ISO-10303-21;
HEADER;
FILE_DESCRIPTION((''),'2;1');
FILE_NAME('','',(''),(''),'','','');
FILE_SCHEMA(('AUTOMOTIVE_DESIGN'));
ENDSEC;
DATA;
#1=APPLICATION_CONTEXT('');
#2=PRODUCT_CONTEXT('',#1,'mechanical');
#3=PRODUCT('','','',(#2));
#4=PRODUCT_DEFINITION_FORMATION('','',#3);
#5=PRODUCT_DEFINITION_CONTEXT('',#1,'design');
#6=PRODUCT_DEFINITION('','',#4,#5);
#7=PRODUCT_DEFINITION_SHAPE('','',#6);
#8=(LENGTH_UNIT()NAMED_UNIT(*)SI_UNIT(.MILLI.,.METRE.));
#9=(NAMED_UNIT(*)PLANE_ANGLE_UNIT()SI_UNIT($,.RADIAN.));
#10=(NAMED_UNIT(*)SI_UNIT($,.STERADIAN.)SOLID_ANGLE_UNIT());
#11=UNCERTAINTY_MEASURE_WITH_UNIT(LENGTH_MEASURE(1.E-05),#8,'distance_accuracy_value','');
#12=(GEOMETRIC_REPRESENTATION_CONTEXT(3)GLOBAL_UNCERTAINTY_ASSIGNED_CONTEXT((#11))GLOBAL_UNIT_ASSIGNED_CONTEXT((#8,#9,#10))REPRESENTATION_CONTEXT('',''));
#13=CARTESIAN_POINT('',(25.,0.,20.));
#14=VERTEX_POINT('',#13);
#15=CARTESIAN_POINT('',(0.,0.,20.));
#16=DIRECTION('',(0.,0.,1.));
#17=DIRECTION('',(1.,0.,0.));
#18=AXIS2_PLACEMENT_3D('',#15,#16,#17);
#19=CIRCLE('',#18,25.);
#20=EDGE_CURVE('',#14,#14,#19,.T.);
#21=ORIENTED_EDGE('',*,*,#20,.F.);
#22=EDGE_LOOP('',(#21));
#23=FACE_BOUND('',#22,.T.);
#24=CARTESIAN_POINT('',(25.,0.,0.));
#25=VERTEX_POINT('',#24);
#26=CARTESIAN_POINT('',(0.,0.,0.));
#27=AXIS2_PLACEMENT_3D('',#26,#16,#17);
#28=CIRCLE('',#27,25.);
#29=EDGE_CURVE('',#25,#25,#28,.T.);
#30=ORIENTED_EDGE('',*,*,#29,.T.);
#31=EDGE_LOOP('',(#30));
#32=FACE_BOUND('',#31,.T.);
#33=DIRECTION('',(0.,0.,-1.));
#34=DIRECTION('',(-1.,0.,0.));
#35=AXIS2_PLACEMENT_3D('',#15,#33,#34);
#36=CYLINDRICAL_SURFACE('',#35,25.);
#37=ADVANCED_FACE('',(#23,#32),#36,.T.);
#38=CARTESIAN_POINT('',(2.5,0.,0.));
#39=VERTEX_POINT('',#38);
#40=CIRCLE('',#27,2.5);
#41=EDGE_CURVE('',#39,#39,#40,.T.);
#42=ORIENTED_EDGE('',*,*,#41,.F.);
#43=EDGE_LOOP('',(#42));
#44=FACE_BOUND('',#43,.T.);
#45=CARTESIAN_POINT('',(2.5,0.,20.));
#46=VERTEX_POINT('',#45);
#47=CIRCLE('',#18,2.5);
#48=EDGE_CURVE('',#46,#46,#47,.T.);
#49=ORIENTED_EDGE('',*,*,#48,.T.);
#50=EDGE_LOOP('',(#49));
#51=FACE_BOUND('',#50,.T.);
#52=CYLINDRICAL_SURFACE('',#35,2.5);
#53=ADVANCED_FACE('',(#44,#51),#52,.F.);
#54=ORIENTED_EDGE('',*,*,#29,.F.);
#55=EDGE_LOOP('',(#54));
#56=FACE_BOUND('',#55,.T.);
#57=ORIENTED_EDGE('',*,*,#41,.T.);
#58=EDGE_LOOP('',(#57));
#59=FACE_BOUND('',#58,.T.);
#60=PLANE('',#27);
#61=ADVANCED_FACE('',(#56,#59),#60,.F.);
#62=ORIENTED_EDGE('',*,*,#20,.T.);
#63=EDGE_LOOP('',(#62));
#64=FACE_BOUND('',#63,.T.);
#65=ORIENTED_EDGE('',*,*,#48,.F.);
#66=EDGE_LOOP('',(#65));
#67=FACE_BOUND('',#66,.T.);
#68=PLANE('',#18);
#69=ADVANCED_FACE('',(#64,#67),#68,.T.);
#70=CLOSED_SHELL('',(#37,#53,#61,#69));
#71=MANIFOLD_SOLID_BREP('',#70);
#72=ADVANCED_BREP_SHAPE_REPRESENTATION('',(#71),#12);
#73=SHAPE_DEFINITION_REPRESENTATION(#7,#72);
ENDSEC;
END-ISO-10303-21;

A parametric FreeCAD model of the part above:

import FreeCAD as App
import Part
import Sketcher

doc = App.newDocument("Part")
params = doc.addObject("Spreadsheet::Sheet", "Params")
for row, (alias, value) in enumerate([
    ("sketch1_diameter", "50 mm"),
    ("sketch1_diameter2", "5 mm"),
    ("pad1_length", "20 mm"),
], start=1):
    params.set(f"A{row}", alias)
    params.set(f"B{row}", "=" + value)
    params.setAlias(f"B{row}", alias)

body = doc.addObject("PartDesign::Body", "Body")

# Sketch on XY plane
sketch1 = body.newObject("Sketcher::SketchObject", "Sketch")
sketch1.AttachmentSupport = (doc.getObject("XY_Plane"), [""])
sketch1.MapMode = "FlatFace"
sketch1.addGeometry(Part.Circle(App.Vector(0, 0, 0), App.Vector(0, 0, 1), 25), False)
sketch1.addGeometry(Part.Circle(App.Vector(0, 0, 0), App.Vector(0, 0, 1), 2.5), False)
sketch1.addConstraint(Sketcher.Constraint("Coincident", 0, 3, -1, 1))
sketch1.addConstraint(Sketcher.Constraint("Coincident", 1, 3, -1, 1))
sketch1.addConstraint(Sketcher.Constraint("Diameter", 0, 50.0))
sketch1.addConstraint(Sketcher.Constraint("Diameter", 1, 5.0))
sketch1.setExpression("Constraints[2]", "Params.sketch1_diameter")
sketch1.setExpression("Constraints[3]", "Params.sketch1_diameter2")
pad1 = body.newObject("PartDesign::Pad", "Pad")
pad1.Profile = sketch1
pad1.setExpression("Length", "Params.pad1_length")

doc.recompute()
